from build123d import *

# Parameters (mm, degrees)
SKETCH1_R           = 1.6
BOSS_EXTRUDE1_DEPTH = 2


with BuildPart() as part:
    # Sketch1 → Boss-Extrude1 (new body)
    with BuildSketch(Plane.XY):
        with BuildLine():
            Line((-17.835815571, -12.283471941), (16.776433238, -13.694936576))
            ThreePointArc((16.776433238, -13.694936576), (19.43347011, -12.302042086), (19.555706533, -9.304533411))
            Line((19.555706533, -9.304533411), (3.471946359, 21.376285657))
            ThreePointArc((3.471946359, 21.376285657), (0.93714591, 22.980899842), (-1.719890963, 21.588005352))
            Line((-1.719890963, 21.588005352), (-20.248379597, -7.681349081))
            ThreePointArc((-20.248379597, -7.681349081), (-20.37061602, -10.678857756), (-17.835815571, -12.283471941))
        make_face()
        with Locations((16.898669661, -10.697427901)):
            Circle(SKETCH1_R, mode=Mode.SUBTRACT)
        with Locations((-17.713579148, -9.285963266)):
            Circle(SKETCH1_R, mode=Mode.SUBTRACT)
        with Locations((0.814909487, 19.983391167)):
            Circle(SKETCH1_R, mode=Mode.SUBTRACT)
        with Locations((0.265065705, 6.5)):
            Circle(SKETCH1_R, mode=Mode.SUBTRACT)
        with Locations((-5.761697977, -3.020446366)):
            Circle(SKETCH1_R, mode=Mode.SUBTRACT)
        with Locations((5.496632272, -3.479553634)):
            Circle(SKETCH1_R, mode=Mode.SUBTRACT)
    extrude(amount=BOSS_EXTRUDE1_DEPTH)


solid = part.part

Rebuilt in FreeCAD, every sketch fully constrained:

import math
import FreeCAD as App
import Part
import Sketcher

V = App.Vector
Q = App.Units.Quantity

doc = App.newDocument("Part")
body = doc.addObject("PartDesign::Body", "Body")

# Sketch on XY plane
sketch1 = doc.addObject("Sketcher::SketchObject", "Sketch")
body.addObject(sketch1)
sketch1.AttachmentSupport = (doc.XY_Plane, [""])
sketch1.MapMode = "FlatFace"
sketch1.addGeometry([
    Part.LineSegment(V(-17.835816, -12.283472, 0), V(16.776433, -13.694937, 0)),  # 0
    Part.ArcOfCircle(Part.Circle(V(16.89867, -10.697428, 0), V(0, 0, 1), 3), math.radians(-92.33519), math.radians(27.66481)),  # 1
    Part.LineSegment(V(19.555707, -9.304533, 0), V(3.471946, 21.376286, 0)),  # 2
    Part.ArcOfCircle(Part.Circle(V(0.814909, 19.983391, 0), V(0, 0, 1), 3), math.radians(27.66481), math.radians(147.66481)),  # 3
    Part.LineSegment(V(-1.719891, 21.588005, 0), V(-20.24838, -7.681349, 0)),  # 4
    Part.ArcOfCircle(Part.Circle(V(-17.713579, -9.285963, 0), V(0, 0, 1), 3), math.radians(147.66481), math.radians(267.66481)),  # 5
    Part.Circle(V(-17.713579, -9.285963, 0), V(0, 0, 1), 1.6),  # 6
    Part.Circle(V(-5.761698, -3.020446, 0), V(0, 0, 1), 1.6),  # 7
    Part.Circle(V(16.89867, -10.697428, 0), V(0, 0, 1), 1.6),  # 8
    Part.Circle(V(5.496632, -3.479554, 0), V(0, 0, 1), 1.6),  # 9
    Part.Circle(V(0.265066, 6.5, 0), V(0, 0, 1), 1.6),  # 10
    Part.Circle(V(0.814909, 19.983391, 0), V(0, 0, 1), 1.6),  # 11
], False)
sketch1.addConstraint([
    Sketcher.Constraint("Coincident", 0, 2, 1, 1),
    Sketcher.Constraint("Coincident", 1, 2, 2, 1),
    Sketcher.Constraint("Coincident", 2, 2, 3, 1),
    Sketcher.Constraint("Coincident", 3, 2, 4, 1),
    Sketcher.Constraint("Coincident", 4, 2, 5, 1),
    Sketcher.Constraint("Coincident", 5, 2, 0, 1),
    Sketcher.Constraint("Coincident", 6, 3, 5, 3),
    Sketcher.Constraint("Coincident", 8, 3, 1, 3),
    Sketcher.Constraint("Coincident", 11, 3, 3, 3),
    Sketcher.Constraint("Radius", 1, Q("3 mm")),
    Sketcher.Constraint("Radius", 3, Q("3 mm")),
    Sketcher.Constraint("Radius", 5, Q("3 mm")),
    Sketcher.Constraint("Diameter", 6, Q("3.2 mm")),
    Sketcher.Constraint("Diameter", 7, Q("3.2 mm")),
    Sketcher.Constraint("Diameter", 8, Q("3.2 mm")),
    Sketcher.Constraint("Diameter", 9, Q("3.2 mm")),
    Sketcher.Constraint("Diameter", 10, Q("3.2 mm")),
    Sketcher.Constraint("Diameter", 11, Q("3.2 mm")),
    Sketcher.Constraint("DistanceY", -1, 1, 10, 3, Q("6.5 mm")),
    Sketcher.Constraint("DistanceX", 9, 3, 0, 2, Q("11.279801 mm")),
    Sketcher.Constraint("DistanceX", 3, 2, 11, 3, Q("2.5348 mm")),
    Sketcher.Constraint("DistanceX", 4, 2, 5, 3, Q("2.5348 mm")),
    Sketcher.Constraint("DistanceX", -1, 1, 1, 3, Q("16.89867 mm")),
    Sketcher.Constraint("DistanceX", -1, 1, 3, 3, Q("0.814909 mm")),
    Sketcher.Constraint("DistanceY", -1, 1, 3, 3, Q("19.983391 mm")),
    Sketcher.Constraint("DistanceX", 5, 3, -1, 1, Q("17.713579 mm")),
    Sketcher.Constraint("DistanceY", 4, 2, -1, 1, Q("7.681349 mm")),
    Sketcher.Constraint("DistanceY", 5, 2, -1, 1, Q("12.283472 mm")),
    Sketcher.Constraint("DistanceY", 1, 3, 3, 3, Q("30.680819 mm")),
    Sketcher.Constraint("DistanceX", 5, 3, 7, 3, Q("11.951881 mm")),
    Sketcher.Constraint("DistanceY", 1, 3, 7, 3, Q("7.676982 mm")),
    Sketcher.Constraint("DistanceX", 7, 3, 9, 3, Q("11.25833 mm")),
    Sketcher.Constraint("DistanceY", 5, 3, 9, 3, Q("5.80641 mm")),
    Sketcher.Constraint("DistanceY", 1, 2, 9, 3, Q("5.82498 mm")),
    Sketcher.Constraint("DistanceX", 10, 3, 1, 2, Q("19.290641 mm")),
    Sketcher.Constraint("DistanceX", 10, 3, 2, 2, Q("3.206881 mm")),
])
pad1 = doc.addObject("PartDesign::Pad", "Pad")
body.addObject(pad1)
pad1.Profile = sketch1
pad1.Length = 2

doc.recompute()
